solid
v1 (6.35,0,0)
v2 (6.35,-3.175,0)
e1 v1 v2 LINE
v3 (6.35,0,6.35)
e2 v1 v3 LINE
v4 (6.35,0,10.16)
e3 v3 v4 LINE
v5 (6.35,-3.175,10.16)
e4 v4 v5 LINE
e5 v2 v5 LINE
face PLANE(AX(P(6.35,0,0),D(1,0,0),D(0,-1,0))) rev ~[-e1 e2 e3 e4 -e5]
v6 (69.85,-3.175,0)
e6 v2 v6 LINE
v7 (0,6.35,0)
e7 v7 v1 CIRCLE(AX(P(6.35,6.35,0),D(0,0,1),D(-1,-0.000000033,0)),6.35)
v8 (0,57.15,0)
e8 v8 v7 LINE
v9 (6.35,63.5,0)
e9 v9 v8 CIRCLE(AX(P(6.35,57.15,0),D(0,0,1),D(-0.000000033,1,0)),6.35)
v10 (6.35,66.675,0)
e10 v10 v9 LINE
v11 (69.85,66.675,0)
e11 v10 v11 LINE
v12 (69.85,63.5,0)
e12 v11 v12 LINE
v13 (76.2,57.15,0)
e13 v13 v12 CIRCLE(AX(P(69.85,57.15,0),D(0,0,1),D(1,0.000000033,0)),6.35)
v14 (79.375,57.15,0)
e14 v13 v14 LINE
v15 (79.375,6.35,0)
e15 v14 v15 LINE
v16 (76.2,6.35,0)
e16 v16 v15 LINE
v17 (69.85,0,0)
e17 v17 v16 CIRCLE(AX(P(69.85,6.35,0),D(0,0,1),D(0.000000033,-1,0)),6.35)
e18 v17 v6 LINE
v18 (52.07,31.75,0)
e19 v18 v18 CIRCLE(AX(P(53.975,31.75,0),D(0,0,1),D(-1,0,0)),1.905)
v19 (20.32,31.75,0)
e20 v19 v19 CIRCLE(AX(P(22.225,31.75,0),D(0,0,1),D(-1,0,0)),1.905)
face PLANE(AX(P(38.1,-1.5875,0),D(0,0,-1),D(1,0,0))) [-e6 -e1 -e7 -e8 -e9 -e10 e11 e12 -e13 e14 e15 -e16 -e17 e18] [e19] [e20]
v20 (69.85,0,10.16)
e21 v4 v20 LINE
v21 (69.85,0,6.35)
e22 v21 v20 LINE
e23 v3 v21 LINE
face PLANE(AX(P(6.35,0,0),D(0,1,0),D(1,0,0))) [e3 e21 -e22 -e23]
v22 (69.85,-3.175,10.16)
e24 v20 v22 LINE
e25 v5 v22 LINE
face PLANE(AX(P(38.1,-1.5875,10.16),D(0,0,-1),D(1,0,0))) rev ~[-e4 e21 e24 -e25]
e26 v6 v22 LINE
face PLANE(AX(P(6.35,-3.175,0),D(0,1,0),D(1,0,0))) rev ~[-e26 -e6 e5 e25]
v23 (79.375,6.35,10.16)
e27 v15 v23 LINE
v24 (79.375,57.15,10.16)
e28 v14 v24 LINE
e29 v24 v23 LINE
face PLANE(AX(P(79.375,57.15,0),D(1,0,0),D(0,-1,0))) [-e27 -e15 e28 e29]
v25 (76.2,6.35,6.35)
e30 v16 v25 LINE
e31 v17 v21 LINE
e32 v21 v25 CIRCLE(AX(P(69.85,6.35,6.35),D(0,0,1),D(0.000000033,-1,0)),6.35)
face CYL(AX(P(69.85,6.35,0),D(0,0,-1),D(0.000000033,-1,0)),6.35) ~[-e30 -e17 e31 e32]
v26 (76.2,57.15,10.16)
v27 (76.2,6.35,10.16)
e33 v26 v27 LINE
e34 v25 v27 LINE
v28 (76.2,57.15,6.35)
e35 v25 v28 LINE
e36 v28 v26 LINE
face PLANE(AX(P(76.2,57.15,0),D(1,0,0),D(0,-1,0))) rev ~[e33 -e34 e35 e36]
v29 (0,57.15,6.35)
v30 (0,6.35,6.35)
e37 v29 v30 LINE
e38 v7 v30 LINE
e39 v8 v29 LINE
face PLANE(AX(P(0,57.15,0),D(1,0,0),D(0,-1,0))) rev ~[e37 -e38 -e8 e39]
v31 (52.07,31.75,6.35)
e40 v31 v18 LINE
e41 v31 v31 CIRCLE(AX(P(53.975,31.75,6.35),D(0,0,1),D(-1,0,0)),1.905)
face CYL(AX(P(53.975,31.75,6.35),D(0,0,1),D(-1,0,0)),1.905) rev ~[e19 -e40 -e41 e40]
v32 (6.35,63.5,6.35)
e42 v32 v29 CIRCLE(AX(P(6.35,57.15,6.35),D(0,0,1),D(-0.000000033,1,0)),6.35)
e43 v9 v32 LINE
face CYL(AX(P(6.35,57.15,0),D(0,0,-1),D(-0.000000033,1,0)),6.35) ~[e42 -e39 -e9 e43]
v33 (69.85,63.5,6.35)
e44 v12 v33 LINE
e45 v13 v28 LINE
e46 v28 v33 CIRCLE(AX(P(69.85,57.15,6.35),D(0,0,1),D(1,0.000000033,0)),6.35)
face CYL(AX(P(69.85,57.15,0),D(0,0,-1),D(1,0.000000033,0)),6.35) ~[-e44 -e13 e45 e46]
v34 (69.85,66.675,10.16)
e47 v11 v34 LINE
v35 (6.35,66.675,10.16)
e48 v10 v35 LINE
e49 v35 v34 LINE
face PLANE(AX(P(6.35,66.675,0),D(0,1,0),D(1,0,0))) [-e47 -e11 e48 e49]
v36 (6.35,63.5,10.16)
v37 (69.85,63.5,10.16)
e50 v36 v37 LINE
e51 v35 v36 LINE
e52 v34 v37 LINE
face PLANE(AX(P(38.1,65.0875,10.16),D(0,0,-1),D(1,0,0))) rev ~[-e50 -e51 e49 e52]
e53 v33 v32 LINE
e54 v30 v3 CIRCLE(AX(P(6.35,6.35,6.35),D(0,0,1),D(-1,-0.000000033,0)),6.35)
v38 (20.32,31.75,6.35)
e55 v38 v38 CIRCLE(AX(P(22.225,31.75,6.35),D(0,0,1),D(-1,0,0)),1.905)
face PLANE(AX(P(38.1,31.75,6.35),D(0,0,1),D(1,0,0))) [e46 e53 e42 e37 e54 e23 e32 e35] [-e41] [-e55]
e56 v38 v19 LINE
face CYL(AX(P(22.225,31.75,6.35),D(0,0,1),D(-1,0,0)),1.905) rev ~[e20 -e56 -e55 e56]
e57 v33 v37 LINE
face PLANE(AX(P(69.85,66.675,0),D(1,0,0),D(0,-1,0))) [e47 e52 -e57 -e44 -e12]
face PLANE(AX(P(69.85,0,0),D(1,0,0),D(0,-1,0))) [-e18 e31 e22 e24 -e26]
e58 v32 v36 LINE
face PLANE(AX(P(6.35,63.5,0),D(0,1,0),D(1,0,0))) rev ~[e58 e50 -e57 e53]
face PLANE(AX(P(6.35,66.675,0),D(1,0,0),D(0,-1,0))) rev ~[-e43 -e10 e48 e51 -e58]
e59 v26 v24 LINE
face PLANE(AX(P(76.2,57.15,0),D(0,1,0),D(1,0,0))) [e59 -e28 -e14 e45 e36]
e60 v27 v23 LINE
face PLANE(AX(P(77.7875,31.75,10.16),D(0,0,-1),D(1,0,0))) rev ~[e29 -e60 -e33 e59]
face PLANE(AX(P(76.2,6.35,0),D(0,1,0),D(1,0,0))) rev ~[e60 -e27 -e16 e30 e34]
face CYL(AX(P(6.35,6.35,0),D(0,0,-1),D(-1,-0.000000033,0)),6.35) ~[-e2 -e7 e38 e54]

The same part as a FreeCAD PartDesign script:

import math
import FreeCAD as App
import Part
import Sketcher
from FreeCAD import Vector
Q = App.Units.Quantity


def add_polygon(sketch, points):
    """Adds a closed chain of lines whose ends are joined by coincident constraints."""
    first, n = sketch.GeometryCount, len(points)
    for a, b in zip(points, points[1:] + points[:1]):
        sketch.addGeometry(Part.LineSegment(App.Vector(*a, 0), App.Vector(*b, 0)), False)
    for i in range(n):
        sketch.addConstraint(Sketcher.Constraint("Coincident", first + i, 2, first + (i + 1) % n, 1))

doc = App.newDocument("Part")
params = doc.addObject("Spreadsheet::Sheet", "Params")
for row, (alias, value) in enumerate([
    ("sketch1_height", "2 in"),
    ("sketch1_radius", "0.25 in"),
    ("sketch1_width", "2.5 in"),
    ("pad1_length", "0.25 in"),
    ("sketch2_diameter", "0.15 in"),
    ("sketch3_height", "2 in"),
    ("sketch3_width", "2.5 in"),
    ("sketch3_width2", "0.125 in"),
    ("pad2_length", "0.4 in"),
], start=1):
    params.set(f"A{row}", alias)
    params.set(f"B{row}", "=" + value)
    params.setAlias(f"B{row}", alias)

body = doc.addObject("PartDesign::Body", "Body")

# Sketch on XY plane
sketch1 = body.newObject("Sketcher::SketchObject", "Sketch")
sketch1.AttachmentSupport = (doc.getObject("XY_Plane"), [""])
sketch1.MapMode = "FlatFace"
sketch1.addGeometry(Part.ArcOfCircle(Part.Circle(Vector(6, 6, 0), Vector(0, 0, 1), 6), math.radians(-180), math.radians(-90)), False)
sketch1.addGeometry(Part.LineSegment(Vector(6, 0, 0), Vector(70, 0, 0)), False)
sketch1.addGeometry(Part.ArcOfCircle(Part.Circle(Vector(70, 6, 0), Vector(0, 0, 1), 6), math.radians(-90), math.radians(0)), False)
sketch1.addGeometry(Part.LineSegment(Vector(76, 6, 0), Vector(76, 57, 0)), False)
sketch1.addGeometry(Part.ArcOfCircle(Part.Circle(Vector(70, 57, 0), Vector(0, 0, 1), 6), math.radians(0), math.radians(90)), False)
sketch1.addGeometry(Part.LineSegment(Vector(70, 64, 0), Vector(6, 64, 0)), False)
sketch1.addGeometry(Part.ArcOfCircle(Part.Circle(Vector(6, 57, 0), Vector(0, 0, 1), 6), math.radians(90), math.radians(180)), False)
sketch1.addGeometry(Part.LineSegment(Vector(0, 57, 0), Vector(0, 6, 0)), False)
sketch1.addConstraint(Sketcher.Constraint("Tangent", 0, 2, 1, 1))
sketch1.addConstraint(Sketcher.Constraint("Tangent", 1, 2, 2, 1))
sketch1.addConstraint(Sketcher.Constraint("Tangent", 2, 2, 3, 1))
sketch1.addConstraint(Sketcher.Constraint("Tangent", 3, 2, 4, 1))
sketch1.addConstraint(Sketcher.Constraint("Tangent", 4, 2, 5, 1))
sketch1.addConstraint(Sketcher.Constraint("Tangent", 5, 2, 6, 1))
sketch1.addConstraint(Sketcher.Constraint("Tangent", 6, 2, 7, 1))
sketch1.addConstraint(Sketcher.Constraint("Tangent", 7, 2, 0, 1))
sketch1.addConstraint(Sketcher.Constraint("Horizontal", 1))
sketch1.addConstraint(Sketcher.Constraint("Vertical", 3))
sketch1.addConstraint(Sketcher.Constraint("Horizontal", 5))
sketch1.addConstraint(Sketcher.Constraint("Vertical", 7))
sketch1.addConstraint(Sketcher.Constraint("Equal", 0, 2))
sketch1.addConstraint(Sketcher.Constraint("Equal", 2, 4))
sketch1.addConstraint(Sketcher.Constraint("Equal", 4, 6))
sketch1.addConstraint(Sketcher.Constraint("PointOnObject", 0, 2, -1))
sketch1.addConstraint(Sketcher.Constraint("PointOnObject", 6, 2, -2))
sketch1.addConstraint(Sketcher.Constraint("DistanceY", 3, 1, 3, 2, Q("2 in")))
sketch1.addConstraint(Sketcher.Constraint("Radius", 0, Q("0.25 in")))
sketch1.addConstraint(Sketcher.Constraint("DistanceX", 1, 1, 1, 2, Q("2.5 in")))
sketch1.setExpression("Constraints[17]", "Params.sketch1_height")
sketch1.setExpression("Constraints[18]", "Params.sketch1_radius")
sketch1.setExpression("Constraints[19]", "Params.sketch1_width")
pad1 = body.newObject("PartDesign::Pad", "Pad")
pad1.Profile = sketch1
pad1.setExpression("Length", "Params.pad1_length")

# Sketch on XY plane
sketch2 = body.newObject("Sketcher::SketchObject", "Sketch001")
sketch2.AttachmentSupport = (doc.getObject("XY_Plane"), [""])
sketch2.MapMode = "FlatFace"
sketch2.AttachmentOffset = App.Placement(Vector(0, 0, 0.25 * 25.4), App.Rotation())
sketch2.addGeometry(Part.Circle(Vector(22.2, 31.8, 0), Vector(0, 0, 1), 1.9), False)
sketch2.addGeometry(Part.Circle(Vector(54, 31.8, 0), Vector(0, 0, 1), 1.9), False)
sketch2.addConstraint(Sketcher.Constraint("Equal", 0, 1))
sketch2.addConstraint(Sketcher.Constraint("Horizontal", 0, 3, 1, 3))
sketch2.addConstraint(Sketcher.Constraint("Diameter", 0, Q("0.15 in")))
sketch2.addConstraint(Sketcher.Constraint("DistanceY", -1, 1, 0, 3, Q("1.25 in")))
sketch2.addConstraint(Sketcher.Constraint("DistanceX", 0, 3, 1, 3, Q("1.25 in")))
sketch2.addConstraint(Sketcher.Constraint("DistanceX", -1, 1, 0, 3, Q("0.875 in")))
sketch2.setExpression("Constraints[2]", "Params.sketch2_diameter")
pocket1 = body.newObject("PartDesign::Pocket", "Pocket")
pocket1.Profile = sketch2
pocket1.Type = "ThroughAll"

# Sketch on XY plane
sketch3 = body.newObject("Sketcher::SketchObject", "Sketch002")
sketch3.AttachmentSupport = (doc.getObject("XY_Plane"), [""])
sketch3.MapMode = "FlatFace"
add_polygon(sketch3, [(6.3, -3.2), (6.3, 0), (69.8, 0), (69.8, -3.2)])  # lines 0-3
add_polygon(sketch3, [(76.2, 6.3), (76.2, 57.1), (79.4, 57.1), (79.4, 6.3)])  # lines 4-7
add_polygon(sketch3, [(6.3, 63.5), (6.3, 66.7), (69.8, 66.7), (69.8, 63.5)])  # lines 8-11
sketch3.addConstraint(Sketcher.Constraint("Vertical", 0))
sketch3.addConstraint(Sketcher.Constraint("Horizontal", 1))
sketch3.addConstraint(Sketcher.Constraint("Vertical", 2))
sketch3.addConstraint(Sketcher.Constraint("Horizontal", 3))
sketch3.addConstraint(Sketcher.Constraint("Vertical", 4))
sketch3.addConstraint(Sketcher.Constraint("Horizontal", 5))
sketch3.addConstraint(Sketcher.Constraint("Vertical", 6))
sketch3.addConstraint(Sketcher.Constraint("Horizontal", 7))
sketch3.addConstraint(Sketcher.Constraint("Vertical", 8))
sketch3.addConstraint(Sketcher.Constraint("Horizontal", 9))
sketch3.addConstraint(Sketcher.Constraint("Vertical", 10))
sketch3.addConstraint(Sketcher.Constraint("Horizontal", 11))
sketch3.addConstraint(Sketcher.Constraint("PointOnObject", 0, 2, -1))
sketch3.addConstraint(Sketcher.Constraint("Vertical", 3, 2, 8, 2))
sketch3.addConstraint(Sketcher.Constraint("Vertical", 2, 2, 9, 2))
sketch3.addConstraint(Sketcher.Constraint("Equal", 7, 0))
sketch3.addConstraint(Sketcher.Constraint("Equal", 2, 8))
sketch3.addConstraint(Sketcher.Constraint("DistanceY", 4, 1, 4, 2, Q("2 in")))
sketch3.addConstraint(Sketcher.Constraint("DistanceX", 1, 1, 1, 2, Q("2.5 in")))
sketch3.addConstraint(Sketcher.Constraint("DistanceX", -1, 1, 4, 2, Q("3 in")))
sketch3.addConstraint(Sketcher.Constraint("DistanceY", -1, 1, 10, 2, Q("2.5 in")))
sketch3.addConstraint(Sketcher.Constraint("DistanceX", 5, 1, 5, 2, Q("0.125 in")))
sketch3.addConstraint(Sketcher.Constraint("DistanceX", -1, 1, 0, 2, Q("0.25 in")))
sketch3.addConstraint(Sketcher.Constraint("DistanceY", -1, 1, 4, 2, Q("2.25 in")))
sketch3.setExpression("Constraints[29]", "Params.sketch3_height")
sketch3.setExpression("Constraints[30]", "Params.sketch3_width")
sketch3.setExpression("Constraints[33]", "Params.sketch3_width2")
pad2 = body.newObject("PartDesign::Pad", "Pad001")
pad2.Profile = sketch3
pad2.setExpression("Length", "Params.pad2_length")

doc.recompute()
